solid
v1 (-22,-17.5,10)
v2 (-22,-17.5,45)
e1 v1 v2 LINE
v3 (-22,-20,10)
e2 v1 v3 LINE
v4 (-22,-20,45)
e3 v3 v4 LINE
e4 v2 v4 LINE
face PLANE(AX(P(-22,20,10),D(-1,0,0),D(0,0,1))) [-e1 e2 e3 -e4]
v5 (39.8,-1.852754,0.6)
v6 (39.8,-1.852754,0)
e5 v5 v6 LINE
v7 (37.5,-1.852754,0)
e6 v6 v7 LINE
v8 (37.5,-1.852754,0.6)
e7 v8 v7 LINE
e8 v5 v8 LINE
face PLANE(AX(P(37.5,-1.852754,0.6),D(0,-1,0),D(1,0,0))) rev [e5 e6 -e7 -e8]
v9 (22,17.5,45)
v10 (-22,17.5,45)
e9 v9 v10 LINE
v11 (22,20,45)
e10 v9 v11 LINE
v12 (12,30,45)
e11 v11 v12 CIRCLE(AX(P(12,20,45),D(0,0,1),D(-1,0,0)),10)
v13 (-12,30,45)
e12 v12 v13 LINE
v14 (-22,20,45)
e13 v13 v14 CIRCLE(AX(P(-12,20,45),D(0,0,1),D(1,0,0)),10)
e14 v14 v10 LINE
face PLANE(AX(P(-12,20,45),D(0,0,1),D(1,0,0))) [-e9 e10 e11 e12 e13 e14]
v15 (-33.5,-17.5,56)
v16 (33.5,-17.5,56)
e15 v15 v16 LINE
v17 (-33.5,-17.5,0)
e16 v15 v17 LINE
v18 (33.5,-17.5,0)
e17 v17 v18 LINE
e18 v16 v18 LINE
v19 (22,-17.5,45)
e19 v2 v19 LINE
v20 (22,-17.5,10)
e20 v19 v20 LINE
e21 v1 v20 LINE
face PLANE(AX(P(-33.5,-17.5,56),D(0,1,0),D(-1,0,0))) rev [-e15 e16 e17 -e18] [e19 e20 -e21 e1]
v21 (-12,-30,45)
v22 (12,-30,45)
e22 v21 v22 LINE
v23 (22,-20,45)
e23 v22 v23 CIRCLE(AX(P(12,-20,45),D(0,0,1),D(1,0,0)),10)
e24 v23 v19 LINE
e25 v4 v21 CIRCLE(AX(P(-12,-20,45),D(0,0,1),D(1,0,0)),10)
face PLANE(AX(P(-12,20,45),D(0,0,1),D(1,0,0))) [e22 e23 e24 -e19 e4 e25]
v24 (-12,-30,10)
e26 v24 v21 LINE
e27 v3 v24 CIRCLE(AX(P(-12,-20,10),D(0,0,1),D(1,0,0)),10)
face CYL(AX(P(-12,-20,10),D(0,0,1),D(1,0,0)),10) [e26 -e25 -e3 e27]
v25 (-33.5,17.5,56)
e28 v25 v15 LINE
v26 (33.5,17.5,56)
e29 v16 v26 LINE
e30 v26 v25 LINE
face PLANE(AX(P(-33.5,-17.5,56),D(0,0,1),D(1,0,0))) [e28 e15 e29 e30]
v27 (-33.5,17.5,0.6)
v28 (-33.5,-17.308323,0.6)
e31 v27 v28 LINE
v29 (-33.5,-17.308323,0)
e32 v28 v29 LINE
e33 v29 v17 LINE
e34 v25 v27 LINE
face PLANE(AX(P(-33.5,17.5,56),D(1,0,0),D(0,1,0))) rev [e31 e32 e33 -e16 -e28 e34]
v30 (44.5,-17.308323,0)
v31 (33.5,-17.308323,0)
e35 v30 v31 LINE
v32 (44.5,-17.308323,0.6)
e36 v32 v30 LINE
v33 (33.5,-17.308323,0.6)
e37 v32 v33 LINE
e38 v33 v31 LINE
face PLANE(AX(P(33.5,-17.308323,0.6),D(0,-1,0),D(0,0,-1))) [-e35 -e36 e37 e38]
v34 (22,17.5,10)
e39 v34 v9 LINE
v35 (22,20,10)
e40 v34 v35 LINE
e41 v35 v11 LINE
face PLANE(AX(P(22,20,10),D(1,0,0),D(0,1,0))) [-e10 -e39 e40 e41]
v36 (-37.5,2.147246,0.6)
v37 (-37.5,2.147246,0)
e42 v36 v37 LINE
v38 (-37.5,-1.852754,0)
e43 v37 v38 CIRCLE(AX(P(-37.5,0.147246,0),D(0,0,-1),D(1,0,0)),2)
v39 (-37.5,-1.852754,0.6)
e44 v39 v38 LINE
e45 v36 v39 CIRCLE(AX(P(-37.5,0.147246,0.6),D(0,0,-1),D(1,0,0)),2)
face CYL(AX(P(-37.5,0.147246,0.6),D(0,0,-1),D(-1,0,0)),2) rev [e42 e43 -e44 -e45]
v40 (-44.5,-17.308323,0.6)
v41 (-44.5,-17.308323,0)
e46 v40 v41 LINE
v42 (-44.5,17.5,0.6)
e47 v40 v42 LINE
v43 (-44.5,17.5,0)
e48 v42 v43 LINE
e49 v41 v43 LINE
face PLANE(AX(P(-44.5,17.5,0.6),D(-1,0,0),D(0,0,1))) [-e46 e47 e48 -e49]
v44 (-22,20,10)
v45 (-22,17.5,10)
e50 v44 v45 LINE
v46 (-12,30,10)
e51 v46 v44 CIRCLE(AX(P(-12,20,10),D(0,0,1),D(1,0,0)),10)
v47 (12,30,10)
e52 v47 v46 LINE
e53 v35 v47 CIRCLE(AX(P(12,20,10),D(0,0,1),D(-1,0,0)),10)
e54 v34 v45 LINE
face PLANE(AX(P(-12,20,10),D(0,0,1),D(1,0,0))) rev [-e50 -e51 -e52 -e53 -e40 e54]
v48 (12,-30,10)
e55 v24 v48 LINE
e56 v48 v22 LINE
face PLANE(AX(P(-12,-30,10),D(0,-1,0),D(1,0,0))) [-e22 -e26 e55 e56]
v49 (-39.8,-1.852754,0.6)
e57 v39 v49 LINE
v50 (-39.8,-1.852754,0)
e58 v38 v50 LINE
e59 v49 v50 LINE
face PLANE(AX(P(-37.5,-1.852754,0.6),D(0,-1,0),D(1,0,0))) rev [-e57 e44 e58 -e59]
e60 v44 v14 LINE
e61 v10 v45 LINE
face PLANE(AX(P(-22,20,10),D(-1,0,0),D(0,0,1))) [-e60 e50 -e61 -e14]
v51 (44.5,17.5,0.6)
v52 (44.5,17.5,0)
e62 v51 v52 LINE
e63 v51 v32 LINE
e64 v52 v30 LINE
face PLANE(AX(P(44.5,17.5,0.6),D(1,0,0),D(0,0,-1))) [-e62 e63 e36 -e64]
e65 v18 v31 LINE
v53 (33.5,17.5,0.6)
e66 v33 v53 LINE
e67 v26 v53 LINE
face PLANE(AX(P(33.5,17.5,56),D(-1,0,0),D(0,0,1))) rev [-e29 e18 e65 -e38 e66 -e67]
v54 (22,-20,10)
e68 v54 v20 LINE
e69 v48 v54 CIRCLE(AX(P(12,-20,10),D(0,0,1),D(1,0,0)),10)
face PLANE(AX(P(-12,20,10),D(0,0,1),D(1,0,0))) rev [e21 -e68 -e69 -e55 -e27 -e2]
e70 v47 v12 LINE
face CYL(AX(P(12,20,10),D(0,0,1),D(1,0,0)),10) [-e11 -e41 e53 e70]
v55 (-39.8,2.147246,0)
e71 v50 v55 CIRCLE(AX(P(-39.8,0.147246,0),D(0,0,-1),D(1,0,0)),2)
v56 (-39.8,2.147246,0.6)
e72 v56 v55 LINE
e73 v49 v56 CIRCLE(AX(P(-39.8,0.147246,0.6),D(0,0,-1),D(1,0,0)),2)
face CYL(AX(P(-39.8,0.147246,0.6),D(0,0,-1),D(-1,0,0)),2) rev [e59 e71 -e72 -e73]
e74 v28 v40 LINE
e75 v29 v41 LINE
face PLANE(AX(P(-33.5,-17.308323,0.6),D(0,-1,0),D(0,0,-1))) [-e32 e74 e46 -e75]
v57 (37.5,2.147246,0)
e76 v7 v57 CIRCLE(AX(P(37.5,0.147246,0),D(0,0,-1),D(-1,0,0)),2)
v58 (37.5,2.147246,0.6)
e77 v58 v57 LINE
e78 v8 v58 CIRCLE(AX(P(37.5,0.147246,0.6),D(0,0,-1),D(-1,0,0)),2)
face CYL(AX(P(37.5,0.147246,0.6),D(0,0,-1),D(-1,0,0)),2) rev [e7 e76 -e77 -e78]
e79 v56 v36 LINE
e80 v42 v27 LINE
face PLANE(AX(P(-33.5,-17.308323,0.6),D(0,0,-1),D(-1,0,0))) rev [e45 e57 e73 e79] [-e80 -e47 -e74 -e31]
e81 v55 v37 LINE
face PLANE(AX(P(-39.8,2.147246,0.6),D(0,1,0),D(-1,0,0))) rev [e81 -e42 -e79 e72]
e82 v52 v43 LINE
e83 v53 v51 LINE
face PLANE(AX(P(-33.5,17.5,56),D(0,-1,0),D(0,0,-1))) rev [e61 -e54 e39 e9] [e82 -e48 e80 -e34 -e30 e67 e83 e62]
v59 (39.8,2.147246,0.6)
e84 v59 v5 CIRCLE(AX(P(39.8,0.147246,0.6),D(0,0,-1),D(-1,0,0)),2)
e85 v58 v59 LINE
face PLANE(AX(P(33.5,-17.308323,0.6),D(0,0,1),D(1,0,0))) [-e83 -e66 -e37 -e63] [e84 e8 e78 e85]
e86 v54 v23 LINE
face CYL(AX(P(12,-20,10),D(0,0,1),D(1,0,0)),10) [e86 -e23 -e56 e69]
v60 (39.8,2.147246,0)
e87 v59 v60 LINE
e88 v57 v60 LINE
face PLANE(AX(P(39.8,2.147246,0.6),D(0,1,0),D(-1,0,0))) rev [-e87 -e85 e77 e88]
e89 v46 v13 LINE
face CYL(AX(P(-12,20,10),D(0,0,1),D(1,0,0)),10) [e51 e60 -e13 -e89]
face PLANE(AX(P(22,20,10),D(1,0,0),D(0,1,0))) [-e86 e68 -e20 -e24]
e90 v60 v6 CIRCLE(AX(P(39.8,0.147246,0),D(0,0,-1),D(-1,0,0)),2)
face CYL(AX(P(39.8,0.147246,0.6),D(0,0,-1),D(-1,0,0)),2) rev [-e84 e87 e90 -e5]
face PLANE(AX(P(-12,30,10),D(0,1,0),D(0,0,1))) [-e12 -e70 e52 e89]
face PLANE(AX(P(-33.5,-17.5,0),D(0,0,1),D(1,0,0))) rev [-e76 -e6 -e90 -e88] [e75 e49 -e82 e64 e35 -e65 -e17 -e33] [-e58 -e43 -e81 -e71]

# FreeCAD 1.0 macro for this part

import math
import FreeCAD as App
import Part
import Sketcher

V = App.Vector
Q = App.Units.Quantity

doc = App.newDocument("Part")
body = doc.addObject("PartDesign::Body", "Body")

# Sketch on XY plane
sketch1 = body.newObject("Sketcher::SketchObject", "Sketch")
sketch1.AttachmentSupport = (doc.getObject("XY_Plane"), [""])
sketch1.MapMode = "FlatFace"
sketch1.addGeometry(Part.LineSegment(V(-34, 18, 0), V(-34, -18, 0)), False)
sketch1.addGeometry(Part.LineSegment(V(-34, -18, 0), V(34, -18, 0)), False)
sketch1.addGeometry(Part.LineSegment(V(34, -18, 0), V(34, 18, 0)), False)
sketch1.addGeometry(Part.LineSegment(V(34, 18, 0), V(-34, 18, 0)), False)
sketch1.addConstraint(Sketcher.Constraint("Coincident", 0, 2, 1, 1))
sketch1.addConstraint(Sketcher.Constraint("Coincident", 1, 2, 2, 1))
sketch1.addConstraint(Sketcher.Constraint("Coincident", 2, 2, 3, 1))
sketch1.addConstraint(Sketcher.Constraint("Coincident", 3, 2, 0, 1))
sketch1.addConstraint(Sketcher.Constraint("Vertical", 0))
sketch1.addConstraint(Sketcher.Constraint("Horizontal", 1))
sketch1.addConstraint(Sketcher.Constraint("Vertical", 2))
sketch1.addConstraint(Sketcher.Constraint("Horizontal", 3))
sketch1.addConstraint(Sketcher.Constraint("Symmetric", 0, 2, 2, 2, -1, 1))
sketch1.addConstraint(Sketcher.Constraint("DistanceX", 1, 1, 1, 2, Q("67 mm")))
sketch1.addConstraint(Sketcher.Constraint("DistanceY", 0, 2, 0, 1, Q("35 mm")))
pad1 = body.newObject("PartDesign::Pad", "Pad")
pad1.Profile = sketch1
pad1.Length = 56

# Sketch on XY plane
sketch2 = body.newObject("Sketcher::SketchObject", "Sketch001")
sketch2.AttachmentSupport = (doc.getObject("XY_Plane"), [""])
sketch2.MapMode = "FlatFace"
sketch2.AttachmentOffset = App.Placement(V(0, 0, 45), App.Rotation())
sketch2.addGeometry(Part.LineSegment(V(12, 30, 0), V(-12, 30, 0)), False)
sketch2.addGeometry(Part.ArcOfCircle(Part.Circle(V(-12, 20, 0), V(0, 0, 1), 10), math.radians(90), math.radians(180)), False)
sketch2.addGeometry(Part.LineSegment(V(-22, 20, 0), V(-22, -20, 0)), False)
sketch2.addGeometry(Part.ArcOfCircle(Part.Circle(V(-12, -20, 0), V(0, 0, 1), 10), math.radians(180), math.radians(270)), False)
sketch2.addGeometry(Part.LineSegment(V(-12, -30, 0), V(12, -30, 0)), False)
sketch2.addGeometry(Part.ArcOfCircle(Part.Circle(V(12, -20, 0), V(0, 0, 1), 10), math.radians(-90), math.radians(0)), False)
sketch2.addGeometry(Part.LineSegment(V(22, -20, 0), V(22, 20, 0)), False)
sketch2.addGeometry(Part.ArcOfCircle(Part.Circle(V(12, 20, 0), V(0, 0, 1), 10), math.radians(0), math.radians(90)), False)
sketch2.addConstraint(Sketcher.Constraint("Tangent", 0, 2, 1, 1))
sketch2.addConstraint(Sketcher.Constraint("Tangent", 1, 2, 2, 1))
sketch2.addConstraint(Sketcher.Constraint("Tangent", 2, 2, 3, 1))
sketch2.addConstraint(Sketcher.Constraint("Tangent", 3, 2, 4, 1))
sketch2.addConstraint(Sketcher.Constraint("Tangent", 4, 2, 5, 1))
sketch2.addConstraint(Sketcher.Constraint("Tangent", 5, 2, 6, 1))
sketch2.addConstraint(Sketcher.Constraint("Tangent", 6, 2, 7, 1))
sketch2.addConstraint(Sketcher.Constraint("Tangent", 7, 2, 0, 1))
sketch2.addConstraint(Sketcher.Constraint("Horizontal", 0))
sketch2.addConstraint(Sketcher.Constraint("Vertical", 2))
sketch2.addConstraint(Sketcher.Constraint("Horizontal", 4))
sketch2.addConstraint(Sketcher.Constraint("Vertical", 6))
sketch2.addConstraint(Sketcher.Constraint("Equal", 1, 3))
sketch2.addConstraint(Sketcher.Constraint("Equal", 3, 5))
sketch2.addConstraint(Sketcher.Constraint("Equal", 5, 7))
sketch2.addConstraint(Sketcher.Constraint("Symmetric", 1, 3, 5, 3, -1, 1))
sketch2.addConstraint(Sketcher.Constraint("Radius", 1, Q("10 mm")))
sketch2.addConstraint(Sketcher.Constraint("DistanceX", 0, 2, 0, 1, Q("24 mm")))
sketch2.addConstraint(Sketcher.Constraint("DistanceY", 2, 2, 2, 1, Q("40 mm")))
pad2 = body.newObject("PartDesign::Pad", "Pad001")
pad2.Profile = sketch2
pad2.Length = 35
pad2.Reversed = True

# Sketch on XY plane
sketch3 = body.newObject("Sketcher::SketchObject", "Sketch002")
sketch3.AttachmentSupport = (doc.getObject("XY_Plane"), [""])
sketch3.MapMode = "FlatFace"
sketch3.addGeometry(Part.LineSegment(V(44.5, 17.5, 0), V(44.5, -17.3, 0)), False)
sketch3.addGeometry(Part.LineSegment(V(44.5, -17.3, 0), V(33.5, -17.3, 0)), False)
sketch3.addGeometry(Part.LineSegment(V(33.5, -17.3, 0), V(33.5, 17.5, 0)), False)
sketch3.addGeometry(Part.LineSegment(V(33.5, 17.5, 0), V(44.5, 17.5, 0)), False)
sketch3.addGeometry(Part.ArcOfCircle(Part.Circle(V(39.8, 0.1, 0), V(0, 0, 1), 2), math.radians(-90), math.radians(90)), False)
sketch3.addGeometry(Part.LineSegment(V(39.8, 2.1, 0), V(37.5, 2.1, 0)), False)
sketch3.addGeometry(Part.ArcOfCircle(Part.Circle(V(37.5, 0.1, 0), V(0, 0, 1), 2), math.radians(90), math.radians(270)), False)
sketch3.addGeometry(Part.LineSegment(V(37.5, -1.9, 0), V(39.8, -1.9, 0)), False)
sketch3.addGeometry(Part.LineSegment(V(-33.5, 17.5, 0), V(-33.5, -17.3, 0)), False)
sketch3.addGeometry(Part.LineSegment(V(-33.5, -17.3, 0), V(-44.5, -17.3, 0)), False)
sketch3.addGeometry(Part.LineSegment(V(-44.5, -17.3, 0), V(-44.5, 17.5, 0)), False)
sketch3.addGeometry(Part.LineSegment(V(-44.5, 17.5, 0), V(-33.5, 17.5, 0)), False)
sketch3.addGeometry(Part.LineSegment(V(-39.8, -1.9, 0), V(-37.5, -1.9, 0)), False)
sketch3.addGeometry(Part.ArcOfCircle(Part.Circle(V(-37.5, 0.1, 0), V(0, 0, 1), 2), math.radians(-90), math.radians(90)), False)
sketch3.addGeometry(Part.LineSegment(V(-37.5, 2.1, 0), V(-39.8, 2.1, 0)), False)
sketch3.addGeometry(Part.ArcOfCircle(Part.Circle(V(-39.8, 0.1, 0), V(0, 0, 1), 2), math.radians(90), math.radians(270)), False)
sketch3.addConstraint(Sketcher.Constraint("Coincident", 0, 2, 1, 1))
sketch3.addConstraint(Sketcher.Constraint("Coincident", 1, 2, 2, 1))
sketch3.addConstraint(Sketcher.Constraint("Coincident", 2, 2, 3, 1))
sketch3.addConstraint(Sketcher.Constraint("Coincident", 3, 2, 0, 1))
sketch3.addConstraint(Sketcher.Constraint("Tangent", 4, 2, 5, 1))
sketch3.addConstraint(Sketcher.Constraint("Tangent", 5, 2, 6, 1))
sketch3.addConstraint(Sketcher.Constraint("Tangent", 6, 2, 7, 1))
sketch3.addConstraint(Sketcher.Constraint("Tangent", 7, 2, 4, 1))
sketch3.addConstraint(Sketcher.Constraint("Coincident", 8, 2, 9, 1))
sketch3.addConstraint(Sketcher.Constraint("Coincident", 9, 2, 10, 1))
sketch3.addConstraint(Sketcher.Constraint("Coincident", 10, 2, 11, 1))
sketch3.addConstraint(Sketcher.Constraint("Coincident", 11, 2, 8, 1))
sketch3.addConstraint(Sketcher.Constraint("Tangent", 12, 2, 13, 1))
sketch3.addConstraint(Sketcher.Constraint("Tangent", 13, 2, 14, 1))
sketch3.addConstraint(Sketcher.Constraint("Tangent", 14, 2, 15, 1))
sketch3.addConstraint(Sketcher.Constraint("Tangent", 15, 2, 12, 1))
sketch3.addConstraint(Sketcher.Constraint("Vertical", 0))
sketch3.addConstraint(Sketcher.Constraint("Horizontal", 1))
sketch3.addConstraint(Sketcher.Constraint("Vertical", 2))
sketch3.addConstraint(Sketcher.Constraint("Horizontal", 3))
sketch3.addConstraint(Sketcher.Constraint("Horizontal", 5))
sketch3.addConstraint(Sketcher.Constraint("Horizontal", 7))
sketch3.addConstraint(Sketcher.Constraint("Vertical", 8))
sketch3.addConstraint(Sketcher.Constraint("Horizontal", 9))
sketch3.addConstraint(Sketcher.Constraint("Vertical", 10))
sketch3.addConstraint(Sketcher.Constraint("Horizontal", 11))
sketch3.addConstraint(Sketcher.Constraint("Horizontal", 12))
sketch3.addConstraint(Sketcher.Constraint("Horizontal", 14))
sketch3.addConstraint(Sketcher.Constraint("Equal", 6, 13))
sketch3.addConstraint(Sketcher.Constraint("Symmetric", 6, 3, 13, 3, -2))
sketch3.addConstraint(Sketcher.Constraint("Symmetric", 1, 2, 8, 2, -2))
sketch3.addConstraint(Sketcher.Constraint("Symmetric", 3, 2, 10, 2, -2))
sketch3.addConstraint(Sketcher.Constraint("Equal", 7, 12))
sketch3.addConstraint(Sketcher.Constraint("Radius", 4, Q("2 mm")))
sketch3.addConstraint(Sketcher.Constraint("DistanceX", 1, 2, 1, 1, Q("11 mm")))
sketch3.addConstraint(Sketcher.Constraint("DistanceX", 5, 2, 5, 1, Q("2.3 mm")))
sketch3.addConstraint(Sketcher.Constraint("DistanceX", 13, 3, 6, 3, Q("75 mm")))
sketch3.addConstraint(Sketcher.Constraint("DistanceX", 6, 3, 0, 2, Q("7 mm")))
sketch3.addConstraint(Sketcher.Constraint("DistanceY", -1, 1, 2, 2, Q("17.5 mm")))
sketch3.addConstraint(Sketcher.Constraint("DistanceY", 0, 2, 0, 1, Q("34.808323 mm")))
sketch3.addConstraint(Sketcher.Constraint("DistanceY", 0, 2, 4, 3, Q("17.455569 mm")))
pad3 = body.newObject("PartDesign::Pad", "Pad002")
pad3.Profile = sketch3
pad3.Length = 0.6

doc.recompute()
